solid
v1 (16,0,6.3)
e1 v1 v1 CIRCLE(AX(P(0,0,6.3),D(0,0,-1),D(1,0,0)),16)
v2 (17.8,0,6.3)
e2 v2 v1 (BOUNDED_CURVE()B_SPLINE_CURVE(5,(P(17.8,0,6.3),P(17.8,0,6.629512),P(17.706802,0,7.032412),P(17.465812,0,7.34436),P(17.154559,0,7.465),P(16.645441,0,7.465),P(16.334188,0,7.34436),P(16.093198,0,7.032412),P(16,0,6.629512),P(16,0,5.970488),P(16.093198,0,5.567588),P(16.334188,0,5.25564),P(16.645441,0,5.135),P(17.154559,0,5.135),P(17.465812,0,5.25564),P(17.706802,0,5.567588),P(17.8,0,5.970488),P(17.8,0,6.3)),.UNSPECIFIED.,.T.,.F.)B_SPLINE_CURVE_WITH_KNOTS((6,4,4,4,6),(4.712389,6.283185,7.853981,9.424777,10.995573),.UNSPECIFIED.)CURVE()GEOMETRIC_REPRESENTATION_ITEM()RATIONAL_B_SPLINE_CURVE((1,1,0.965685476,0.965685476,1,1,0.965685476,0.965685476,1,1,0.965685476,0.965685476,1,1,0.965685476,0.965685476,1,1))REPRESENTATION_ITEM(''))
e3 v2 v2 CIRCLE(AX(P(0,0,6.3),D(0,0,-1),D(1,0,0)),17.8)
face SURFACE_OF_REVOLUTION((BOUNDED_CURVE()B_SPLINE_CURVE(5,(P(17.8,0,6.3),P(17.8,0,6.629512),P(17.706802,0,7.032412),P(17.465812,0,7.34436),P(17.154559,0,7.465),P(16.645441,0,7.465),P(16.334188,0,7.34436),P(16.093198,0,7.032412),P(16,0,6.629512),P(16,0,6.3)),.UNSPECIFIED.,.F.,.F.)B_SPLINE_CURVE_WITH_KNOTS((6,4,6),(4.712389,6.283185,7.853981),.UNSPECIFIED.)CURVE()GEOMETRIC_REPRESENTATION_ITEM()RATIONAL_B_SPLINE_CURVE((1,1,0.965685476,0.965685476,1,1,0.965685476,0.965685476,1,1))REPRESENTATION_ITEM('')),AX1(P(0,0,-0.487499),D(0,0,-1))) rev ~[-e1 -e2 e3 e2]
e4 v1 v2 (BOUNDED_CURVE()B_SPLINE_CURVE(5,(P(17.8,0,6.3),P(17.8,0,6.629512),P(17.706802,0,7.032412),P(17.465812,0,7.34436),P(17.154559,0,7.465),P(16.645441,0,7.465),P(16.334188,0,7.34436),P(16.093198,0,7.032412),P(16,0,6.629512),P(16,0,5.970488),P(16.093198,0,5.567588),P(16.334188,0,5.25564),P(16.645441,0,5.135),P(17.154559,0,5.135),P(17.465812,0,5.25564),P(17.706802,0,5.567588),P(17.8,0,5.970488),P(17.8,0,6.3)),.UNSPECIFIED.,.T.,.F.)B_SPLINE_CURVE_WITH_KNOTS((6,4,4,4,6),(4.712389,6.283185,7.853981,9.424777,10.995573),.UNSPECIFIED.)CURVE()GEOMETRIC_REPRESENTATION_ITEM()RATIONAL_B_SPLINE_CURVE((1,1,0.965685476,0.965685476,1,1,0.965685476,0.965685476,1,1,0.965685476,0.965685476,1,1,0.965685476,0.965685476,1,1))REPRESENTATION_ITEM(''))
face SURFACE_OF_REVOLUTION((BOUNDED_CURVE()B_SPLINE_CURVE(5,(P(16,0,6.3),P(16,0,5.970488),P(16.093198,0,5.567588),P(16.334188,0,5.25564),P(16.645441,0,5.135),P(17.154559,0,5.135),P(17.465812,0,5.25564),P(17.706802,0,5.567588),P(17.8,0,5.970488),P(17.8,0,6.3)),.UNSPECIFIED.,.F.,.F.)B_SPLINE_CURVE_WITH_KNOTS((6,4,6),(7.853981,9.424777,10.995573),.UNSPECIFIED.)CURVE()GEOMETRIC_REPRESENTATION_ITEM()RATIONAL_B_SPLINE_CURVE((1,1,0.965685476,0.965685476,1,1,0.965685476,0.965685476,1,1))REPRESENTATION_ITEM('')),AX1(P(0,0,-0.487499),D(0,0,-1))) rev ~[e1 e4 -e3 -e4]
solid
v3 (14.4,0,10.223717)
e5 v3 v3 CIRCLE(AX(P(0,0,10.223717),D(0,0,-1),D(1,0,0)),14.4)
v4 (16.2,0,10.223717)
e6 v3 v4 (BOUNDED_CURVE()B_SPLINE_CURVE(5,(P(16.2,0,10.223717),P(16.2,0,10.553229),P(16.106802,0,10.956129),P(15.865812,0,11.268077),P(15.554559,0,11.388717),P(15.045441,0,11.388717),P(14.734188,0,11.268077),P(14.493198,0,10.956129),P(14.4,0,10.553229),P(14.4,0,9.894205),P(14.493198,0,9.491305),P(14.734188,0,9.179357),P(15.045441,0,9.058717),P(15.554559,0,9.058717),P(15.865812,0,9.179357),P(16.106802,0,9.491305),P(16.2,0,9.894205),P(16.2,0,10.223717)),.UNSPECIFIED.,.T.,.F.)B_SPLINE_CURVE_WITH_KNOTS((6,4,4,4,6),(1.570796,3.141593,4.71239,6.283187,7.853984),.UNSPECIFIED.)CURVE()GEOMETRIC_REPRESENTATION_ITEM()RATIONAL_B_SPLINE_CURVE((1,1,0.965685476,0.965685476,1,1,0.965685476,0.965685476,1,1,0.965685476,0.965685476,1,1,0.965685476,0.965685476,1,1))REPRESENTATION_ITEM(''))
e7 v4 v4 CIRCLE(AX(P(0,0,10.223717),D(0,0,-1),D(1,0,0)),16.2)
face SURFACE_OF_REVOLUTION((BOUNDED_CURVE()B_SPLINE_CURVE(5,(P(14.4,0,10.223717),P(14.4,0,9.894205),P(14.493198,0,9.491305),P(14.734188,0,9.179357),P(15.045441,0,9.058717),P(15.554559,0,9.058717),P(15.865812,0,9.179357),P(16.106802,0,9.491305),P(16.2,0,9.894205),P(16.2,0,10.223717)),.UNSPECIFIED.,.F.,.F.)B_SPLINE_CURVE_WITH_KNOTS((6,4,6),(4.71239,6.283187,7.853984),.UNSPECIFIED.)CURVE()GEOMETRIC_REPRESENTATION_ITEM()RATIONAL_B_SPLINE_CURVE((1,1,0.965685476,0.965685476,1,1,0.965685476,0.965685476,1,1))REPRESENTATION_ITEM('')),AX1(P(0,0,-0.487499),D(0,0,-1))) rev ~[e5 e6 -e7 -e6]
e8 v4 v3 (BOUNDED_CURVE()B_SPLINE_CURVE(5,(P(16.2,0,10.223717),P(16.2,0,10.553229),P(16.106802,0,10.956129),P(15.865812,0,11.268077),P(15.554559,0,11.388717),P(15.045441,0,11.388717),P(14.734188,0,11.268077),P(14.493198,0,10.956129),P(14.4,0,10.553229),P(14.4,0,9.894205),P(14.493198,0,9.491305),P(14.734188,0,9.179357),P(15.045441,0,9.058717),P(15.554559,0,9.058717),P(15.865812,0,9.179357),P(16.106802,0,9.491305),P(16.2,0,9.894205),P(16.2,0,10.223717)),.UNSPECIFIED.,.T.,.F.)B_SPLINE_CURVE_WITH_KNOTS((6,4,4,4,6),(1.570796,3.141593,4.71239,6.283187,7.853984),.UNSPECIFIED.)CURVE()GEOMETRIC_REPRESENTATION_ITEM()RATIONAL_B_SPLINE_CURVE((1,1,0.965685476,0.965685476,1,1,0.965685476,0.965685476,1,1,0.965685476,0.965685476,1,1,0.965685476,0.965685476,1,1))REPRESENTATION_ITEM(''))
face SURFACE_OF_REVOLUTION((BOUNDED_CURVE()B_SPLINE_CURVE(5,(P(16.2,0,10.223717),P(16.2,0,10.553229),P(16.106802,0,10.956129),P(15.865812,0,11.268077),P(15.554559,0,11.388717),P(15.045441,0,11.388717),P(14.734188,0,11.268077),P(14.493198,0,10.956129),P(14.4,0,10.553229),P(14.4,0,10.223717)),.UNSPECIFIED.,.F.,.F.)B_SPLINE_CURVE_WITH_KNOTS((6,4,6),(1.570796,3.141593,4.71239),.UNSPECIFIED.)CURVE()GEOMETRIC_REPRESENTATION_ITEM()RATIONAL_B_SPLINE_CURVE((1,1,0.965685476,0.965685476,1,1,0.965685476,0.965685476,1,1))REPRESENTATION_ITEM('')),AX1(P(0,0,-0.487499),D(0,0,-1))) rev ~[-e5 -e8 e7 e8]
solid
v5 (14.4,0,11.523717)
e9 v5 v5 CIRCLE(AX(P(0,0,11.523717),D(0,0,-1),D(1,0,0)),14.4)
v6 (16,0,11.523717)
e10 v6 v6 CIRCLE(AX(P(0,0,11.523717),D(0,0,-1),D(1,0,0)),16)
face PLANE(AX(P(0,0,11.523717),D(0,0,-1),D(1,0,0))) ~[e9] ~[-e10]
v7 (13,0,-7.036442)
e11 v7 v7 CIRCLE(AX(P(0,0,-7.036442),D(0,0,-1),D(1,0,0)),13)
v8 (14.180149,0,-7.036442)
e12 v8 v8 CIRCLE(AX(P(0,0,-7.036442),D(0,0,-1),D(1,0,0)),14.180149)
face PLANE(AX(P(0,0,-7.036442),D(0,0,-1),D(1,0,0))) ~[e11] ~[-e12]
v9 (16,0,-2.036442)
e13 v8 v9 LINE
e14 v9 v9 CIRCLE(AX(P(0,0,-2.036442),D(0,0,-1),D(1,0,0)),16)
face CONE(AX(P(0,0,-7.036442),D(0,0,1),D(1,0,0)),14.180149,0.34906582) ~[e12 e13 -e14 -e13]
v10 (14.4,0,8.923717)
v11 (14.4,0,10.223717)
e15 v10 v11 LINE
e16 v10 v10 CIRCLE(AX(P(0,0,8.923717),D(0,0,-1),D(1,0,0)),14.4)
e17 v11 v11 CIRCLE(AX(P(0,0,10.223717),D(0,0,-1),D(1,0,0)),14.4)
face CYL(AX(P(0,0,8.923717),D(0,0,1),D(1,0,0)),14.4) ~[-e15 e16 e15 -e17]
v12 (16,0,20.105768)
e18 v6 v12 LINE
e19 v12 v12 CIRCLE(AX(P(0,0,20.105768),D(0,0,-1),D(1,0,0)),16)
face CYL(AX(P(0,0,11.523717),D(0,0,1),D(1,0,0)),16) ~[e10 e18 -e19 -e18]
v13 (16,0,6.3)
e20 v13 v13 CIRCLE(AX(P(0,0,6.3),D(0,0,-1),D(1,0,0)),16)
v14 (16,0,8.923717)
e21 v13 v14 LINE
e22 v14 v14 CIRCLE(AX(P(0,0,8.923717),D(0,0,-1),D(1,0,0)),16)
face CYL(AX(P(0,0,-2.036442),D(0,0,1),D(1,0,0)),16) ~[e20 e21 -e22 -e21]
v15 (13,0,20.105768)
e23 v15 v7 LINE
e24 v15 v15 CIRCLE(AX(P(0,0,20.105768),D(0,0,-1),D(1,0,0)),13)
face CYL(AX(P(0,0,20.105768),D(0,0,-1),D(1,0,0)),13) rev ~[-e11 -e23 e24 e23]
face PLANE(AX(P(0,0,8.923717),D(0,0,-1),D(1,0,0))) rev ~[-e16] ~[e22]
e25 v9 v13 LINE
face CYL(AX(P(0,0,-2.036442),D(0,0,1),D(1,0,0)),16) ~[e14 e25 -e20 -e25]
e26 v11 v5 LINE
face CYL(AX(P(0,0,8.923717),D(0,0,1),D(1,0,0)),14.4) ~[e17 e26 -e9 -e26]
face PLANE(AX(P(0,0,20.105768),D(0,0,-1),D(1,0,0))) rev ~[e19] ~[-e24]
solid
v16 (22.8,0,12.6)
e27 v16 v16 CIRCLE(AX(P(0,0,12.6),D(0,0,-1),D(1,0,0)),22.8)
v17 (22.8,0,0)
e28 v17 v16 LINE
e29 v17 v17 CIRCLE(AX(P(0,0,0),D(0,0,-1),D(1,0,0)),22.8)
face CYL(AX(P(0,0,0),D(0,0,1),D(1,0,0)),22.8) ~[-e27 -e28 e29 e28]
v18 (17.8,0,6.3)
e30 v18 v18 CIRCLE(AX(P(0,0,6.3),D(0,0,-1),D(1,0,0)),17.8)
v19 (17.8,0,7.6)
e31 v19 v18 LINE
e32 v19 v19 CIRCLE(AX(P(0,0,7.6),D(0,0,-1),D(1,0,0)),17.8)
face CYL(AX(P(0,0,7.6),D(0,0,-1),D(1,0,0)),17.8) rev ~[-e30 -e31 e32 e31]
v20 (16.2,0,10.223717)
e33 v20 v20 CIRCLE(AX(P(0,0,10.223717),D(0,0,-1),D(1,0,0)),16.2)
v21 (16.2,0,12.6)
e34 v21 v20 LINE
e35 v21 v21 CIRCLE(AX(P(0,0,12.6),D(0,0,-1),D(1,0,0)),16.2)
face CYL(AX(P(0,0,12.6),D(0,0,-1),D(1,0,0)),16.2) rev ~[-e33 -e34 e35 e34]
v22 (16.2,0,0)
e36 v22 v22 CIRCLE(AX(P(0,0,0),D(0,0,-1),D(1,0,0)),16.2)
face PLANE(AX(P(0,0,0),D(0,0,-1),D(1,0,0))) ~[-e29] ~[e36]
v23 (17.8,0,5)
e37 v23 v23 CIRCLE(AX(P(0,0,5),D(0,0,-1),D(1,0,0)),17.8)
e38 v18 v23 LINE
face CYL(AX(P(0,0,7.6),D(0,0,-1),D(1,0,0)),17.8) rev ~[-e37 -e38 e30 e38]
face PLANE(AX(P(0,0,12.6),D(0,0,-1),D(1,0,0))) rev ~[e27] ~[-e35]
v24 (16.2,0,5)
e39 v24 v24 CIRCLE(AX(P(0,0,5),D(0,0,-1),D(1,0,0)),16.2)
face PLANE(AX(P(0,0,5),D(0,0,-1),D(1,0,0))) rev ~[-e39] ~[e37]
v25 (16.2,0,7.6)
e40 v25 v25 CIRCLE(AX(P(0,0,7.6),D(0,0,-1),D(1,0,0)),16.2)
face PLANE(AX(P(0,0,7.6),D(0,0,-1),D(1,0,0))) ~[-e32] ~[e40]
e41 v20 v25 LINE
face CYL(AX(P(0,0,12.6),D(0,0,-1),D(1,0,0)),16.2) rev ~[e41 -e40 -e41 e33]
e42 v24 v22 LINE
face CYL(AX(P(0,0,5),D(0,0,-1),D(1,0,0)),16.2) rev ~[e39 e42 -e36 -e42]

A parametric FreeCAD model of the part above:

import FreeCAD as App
import Part
import Sketcher

V = App.Vector
Q = App.Units.Quantity

doc = App.newDocument("Part")
body = doc.addObject("PartDesign::Body", "Body")
body.AllowCompound = True

# Sketch on XZ plane
sketch1 = doc.addObject("Sketcher::SketchObject", "Sketch")
body.addObject(sketch1)
sketch1.AttachmentSupport = (doc.XZ_Plane, [""])
sketch1.MapMode = "FlatFace"
sketch1.addGeometry([
    Part.LineSegment(V(16.2, 5, 0), V(16.2, 0, 0)),  # 0
    Part.LineSegment(V(16.2, 0, 0), V(22.8, 0, 0)),  # 1
    Part.LineSegment(V(22.8, 0, 0), V(22.8, 12.6, 0)),  # 2
    Part.LineSegment(V(22.8, 12.6, 0), V(16.2, 12.6, 0)),  # 3
    Part.LineSegment(V(16.2, 12.6, 0), V(16.2, 10.223717, 0)),  # 4
    Part.LineSegment(V(16.2, 10.223717, 0), V(16.2, 7.6, 0)),  # 5
    Part.LineSegment(V(16.2, 7.6, 0), V(17.8, 7.6, 0)),  # 6
    Part.LineSegment(V(17.8, 7.6, 0), V(17.8, 6.3, 0)),  # 7
    Part.LineSegment(V(17.8, 6.3, 0), V(17.8, 5, 0)),  # 8
    Part.LineSegment(V(17.8, 5, 0), V(16.2, 5, 0)),  # 9
    Part.LineSegment(V(16, -2.036442, 0), V(16, 6.3, 0)),  # 10
    Part.LineSegment(V(16, 6.3, 0), V(16, 8.923717, 0)),  # 11
    Part.LineSegment(V(16, 8.923717, 0), V(14.4, 8.923717, 0)),  # 12
    Part.LineSegment(V(14.4, 8.923717, 0), V(14.4, 10.223717, 0)),  # 13
    Part.LineSegment(V(14.4, 10.223717, 0), V(14.4, 11.523717, 0)),  # 14
    Part.LineSegment(V(14.4, 11.523717, 0), V(16, 11.523717, 0)),  # 15
    Part.LineSegment(V(16, 11.523717, 0), V(16, 20.105768, 0)),  # 16
    Part.LineSegment(V(16, 20.105768, 0), V(13, 20.105768, 0)),  # 17
    Part.LineSegment(V(13, 20.105768, 0), V(13, -7.036442, 0)),  # 18
    Part.LineSegment(V(13, -7.036442, 0), V(14.180149, -7.036442, 0)),  # 19
    Part.LineSegment(V(14.180149, -7.036442, 0), V(16, -2.036442, 0)),  # 20
    Part.BSplineCurve([V(17.8, 6.3, 0), V(17.8, 6.629512, 0), V(17.706802, 7.032412, 0), V(17.465812, 7.34436, 0), V(17.154559, 7.465, 0), V(16.645441, 7.465, 0), V(16.334188, 7.34436, 0), V(16.093198, 7.032412, 0), V(16, 6.629512, 0), V(16, 6.3, 0)], [6, 4, 6], [4.712389, 6.283185, 7.853981], False, 5, [1, 1, 0.965685476, 0.965685476, 1, 1, 0.965685476, 0.965685476, 1, 1], False),  # 21
    Part.BSplineCurve([V(16, 6.3, 0), V(16, 5.970488, 0), V(16.093198, 5.567588, 0), V(16.334188, 5.25564, 0), V(16.645441, 5.135, 0), V(17.154559, 5.135, 0), V(17.465812, 5.25564, 0), V(17.706802, 5.567588, 0), V(17.8, 5.970488, 0), V(17.8, 6.3, 0)], [6, 4, 6], [7.853981, 9.424777, 10.995573], False, 5, [1, 1, 0.965685476, 0.965685476, 1, 1, 0.965685476, 0.965685476, 1, 1], False),  # 22
    Part.BSplineCurve([V(16.2, 10.223717, 0), V(16.2, 10.553229, 0), V(16.106802, 10.956129, 0), V(15.865812, 11.268077, 0), V(15.554559, 11.388717, 0), V(15.045441, 11.388717, 0), V(14.734188, 11.268077, 0), V(14.493198, 10.956129, 0), V(14.4, 10.553229, 0), V(14.4, 10.223717, 0)], [6, 4, 6], [1.570796, 3.141593, 4.71239], False, 5, [1, 1, 0.965685476, 0.965685476, 1, 1, 0.965685476, 0.965685476, 1, 1], False),  # 23
    Part.BSplineCurve([V(14.4, 10.223717, 0), V(14.4, 9.894205, 0), V(14.493198, 9.491305, 0), V(14.734188, 9.179357, 0), V(15.045441, 9.058717, 0), V(15.554559, 9.058717, 0), V(15.865812, 9.179357, 0), V(16.106802, 9.491305, 0), V(16.2, 9.894205, 0), V(16.2, 10.223717, 0)], [6, 4, 6], [4.71239, 6.283187, 7.853984], False, 5, [1, 1, 0.965685476, 0.965685476, 1, 1, 0.965685476, 0.965685476, 1, 1], False),  # 24
], False)
sketch1.addConstraint([
    Sketcher.Constraint("Block", 21),
    Sketcher.Constraint("Block", 22),
    Sketcher.Constraint("Block", 23),
    Sketcher.Constraint("Block", 24),
    Sketcher.Constraint("Coincident", 0, 2, 1, 1),
    Sketcher.Constraint("Coincident", 1, 2, 2, 1),
    Sketcher.Constraint("Coincident", 2, 2, 3, 1),
    Sketcher.Constraint("Coincident", 3, 2, 4, 1),
    Sketcher.Constraint("Coincident", 4, 2, 5, 1),
    Sketcher.Constraint("Coincident", 5, 2, 6, 1),
    Sketcher.Constraint("Coincident", 6, 2, 7, 1),
    Sketcher.Constraint("Coincident", 7, 2, 8, 1),
    Sketcher.Constraint("Coincident", 8, 2, 9, 1),
    Sketcher.Constraint("Coincident", 9, 2, 0, 1),
    Sketcher.Constraint("Coincident", 10, 2, 11, 1),
    Sketcher.Constraint("Coincident", 11, 2, 12, 1),
    Sketcher.Constraint("Coincident", 12, 2, 13, 1),
    Sketcher.Constraint("Coincident", 13, 2, 14, 1),
    Sketcher.Constraint("Coincident", 14, 2, 15, 1),
    Sketcher.Constraint("Coincident", 15, 2, 16, 1),
    Sketcher.Constraint("Coincident", 16, 2, 17, 1),
    Sketcher.Constraint("Coincident", 17, 2, 18, 1),
    Sketcher.Constraint("Coincident", 18, 2, 19, 1),
    Sketcher.Constraint("Coincident", 19, 2, 20, 1),
    Sketcher.Constraint("Coincident", 20, 2, 10, 1),
    Sketcher.Constraint("Vertical", 0),
    Sketcher.Constraint("Horizontal", 1),
    Sketcher.Constraint("Vertical", 2),
    Sketcher.Constraint("Horizontal", 3),
    Sketcher.Constraint("Vertical", 4),
    Sketcher.Constraint("Vertical", 5),
    Sketcher.Constraint("Horizontal", 6),
    Sketcher.Constraint("Vertical", 7),
    Sketcher.Constraint("Vertical", 8),
    Sketcher.Constraint("Horizontal", 9),
    Sketcher.Constraint("Vertical", 10),
    Sketcher.Constraint("Vertical", 11),
    Sketcher.Constraint("Horizontal", 12),
    Sketcher.Constraint("Vertical", 13),
    Sketcher.Constraint("Vertical", 14),
    Sketcher.Constraint("Horizontal", 15),
    Sketcher.Constraint("Vertical", 16),
    Sketcher.Constraint("Horizontal", 17),
    Sketcher.Constraint("Vertical", 18),
    Sketcher.Constraint("Horizontal", 19),
    Sketcher.Constraint("PointOnObject", 0, 2, -1),
    Sketcher.Constraint("Horizontal", 7, 2, 10, 2),
    Sketcher.Constraint("Horizontal", 4, 2, 13, 2),
    Sketcher.Constraint("Vertical", 0, 2, 3, 2),
    Sketcher.Constraint("Vertical", 11, 2, 15, 2),
    Sketcher.Constraint("Equal", 9, 12),
    Sketcher.Constraint("Equal", 7, 8),
    Sketcher.Constraint("Equal", 5, 11),
    Sketcher.Constraint("Equal", 13, 14),
    Sketcher.Constraint("DistanceX", 17, 2, 17, 1, Q("3 mm")),
    Sketcher.Constraint("DistanceY", 0, 2, 0, 1, Q("5 mm")),
    Sketcher.Constraint("Angle", 20, Q("70.000002 deg")),
    Sketcher.Constraint("DistanceX", 1, 1, 1, 2, Q("6.6 mm")),
    Sketcher.Constraint("DistanceX", 6, 1, 6, 2, Q("1.6 mm")),
    Sketcher.Constraint("DistanceY", 2, 1, 2, 2, Q("12.6 mm")),
    Sketcher.Constraint("DistanceY", 7, 2, 7, 1, Q("1.3 mm")),
    Sketcher.Constraint("DistanceX", -1, 1, 10, 2, Q("16 mm")),
    Sketcher.Constraint("DistanceY", 19, 2, 20, 2, Q("5 mm")),
    Sketcher.Constraint("DistanceX", -1, 1, 0, 2, Q("16.2 mm")),
    Sketcher.Constraint("DistanceY", 16, 1, 16, 2, Q("8.582051 mm")),
    Sketcher.Constraint("DistanceY", 18, 2, 18, 1, Q("27.14221 mm")),
    Sketcher.Constraint("DistanceY", 4, 2, 4, 1, Q("2.376283 mm")),
])
revolution = doc.addObject("PartDesign::Revolution", "Revolution")
body.addObject(revolution)
revolution.Profile = sketch1
revolution.ReferenceAxis = (sketch1, ["V_Axis"])
revolution.Angle = 360

doc.recompute()
